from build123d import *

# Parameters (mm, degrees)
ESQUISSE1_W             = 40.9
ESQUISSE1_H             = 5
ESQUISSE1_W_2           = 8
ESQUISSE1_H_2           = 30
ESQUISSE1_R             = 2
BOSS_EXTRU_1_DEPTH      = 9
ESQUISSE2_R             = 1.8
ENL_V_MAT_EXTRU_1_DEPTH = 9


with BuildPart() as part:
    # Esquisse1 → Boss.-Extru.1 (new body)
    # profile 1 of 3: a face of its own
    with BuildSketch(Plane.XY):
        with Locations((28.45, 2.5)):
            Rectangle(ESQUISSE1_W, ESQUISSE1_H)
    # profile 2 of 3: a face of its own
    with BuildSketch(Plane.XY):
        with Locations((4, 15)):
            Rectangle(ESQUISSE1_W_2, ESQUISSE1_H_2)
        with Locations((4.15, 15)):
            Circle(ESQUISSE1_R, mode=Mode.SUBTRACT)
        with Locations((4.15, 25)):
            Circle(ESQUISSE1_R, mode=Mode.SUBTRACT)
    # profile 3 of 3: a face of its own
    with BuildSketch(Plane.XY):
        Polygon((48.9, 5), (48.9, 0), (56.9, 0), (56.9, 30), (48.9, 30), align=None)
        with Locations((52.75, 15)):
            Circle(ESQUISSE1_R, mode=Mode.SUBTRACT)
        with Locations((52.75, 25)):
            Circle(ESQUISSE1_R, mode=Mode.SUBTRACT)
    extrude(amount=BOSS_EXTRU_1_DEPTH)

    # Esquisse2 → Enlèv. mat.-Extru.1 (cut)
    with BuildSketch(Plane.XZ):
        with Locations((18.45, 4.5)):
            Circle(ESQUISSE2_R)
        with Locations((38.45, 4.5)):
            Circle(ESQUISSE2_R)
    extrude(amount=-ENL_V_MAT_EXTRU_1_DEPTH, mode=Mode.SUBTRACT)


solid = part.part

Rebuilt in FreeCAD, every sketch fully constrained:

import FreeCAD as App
import Part
import Sketcher

V = App.Vector

doc = App.newDocument("Part")
body = doc.addObject("PartDesign::Body", "Body")

# Sketch on XY plane
sketch1 = body.newObject("Sketcher::SketchObject", "Sketch")
sketch1.AttachmentSupport = (doc.getObject("XY_Plane"), [""])
sketch1.MapMode = "FlatFace"
sketch1.addGeometry(Part.LineSegment(V(56.9, 0, 0), V(56.9, 30, 0)), False)
sketch1.addGeometry(Part.LineSegment(V(56.9, 30, 0), V(48.9, 30, 0)), False)
sketch1.addGeometry(Part.LineSegment(V(48.9, 30, 0), V(48.9, 5, 0)), False)
sketch1.addGeometry(Part.LineSegment(V(48.9, 5, 0), V(8, 5, 0)), False)
sketch1.addGeometry(Part.LineSegment(V(8, 5, 0), V(8, 30, 0)), False)
sketch1.addGeometry(Part.LineSegment(V(8, 30, 0), V(0, 30, 0)), False)
sketch1.addGeometry(Part.LineSegment(V(0, 30, 0), V(0, 0, 0)), False)
sketch1.addGeometry(Part.LineSegment(V(0, 0, 0), V(56.9, 0, 0)), False)
sketch1.addGeometry(Part.Circle(V(4.2, 25, 0), V(0, 0, 1), 2), False)
sketch1.addGeometry(Part.Circle(V(4.2, 15, 0), V(0, 0, 1), 2), False)
sketch1.addGeometry(Part.Circle(V(52.8, 25, 0), V(0, 0, 1), 2), False)
sketch1.addGeometry(Part.Circle(V(52.8, 15, 0), V(0, 0, 1), 2), False)
sketch1.addConstraint(Sketcher.Constraint("Coincident", 0, 2, 1, 1))
sketch1.addConstraint(Sketcher.Constraint("Coincident", 1, 2, 2, 1))
sketch1.addConstraint(Sketcher.Constraint("Coincident", 2, 2, 3, 1))
sketch1.addConstraint(Sketcher.Constraint("Coincident", 3, 2, 4, 1))
sketch1.addConstraint(Sketcher.Constraint("Coincident", 4, 2, 5, 1))
sketch1.addConstraint(Sketcher.Constraint("Coincident", 5, 2, 6, 1))
sketch1.addConstraint(Sketcher.Constraint("Coincident", 6, 2, 7, 1))
sketch1.addConstraint(Sketcher.Constraint("Coincident", 7, 2, 0, 1))
sketch1.addConstraint(Sketcher.Constraint("Vertical", 0))
sketch1.addConstraint(Sketcher.Constraint("Horizontal", 1))
sketch1.addConstraint(Sketcher.Constraint("Vertical", 2))
sketch1.addConstraint(Sketcher.Constraint("Horizontal", 3))
sketch1.addConstraint(Sketcher.Constraint("Vertical", 4))
sketch1.addConstraint(Sketcher.Constraint("Horizontal", 5))
sketch1.addConstraint(Sketcher.Constraint("Vertical", 6))
sketch1.addConstraint(Sketcher.Constraint("Horizontal", 7))
sketch1.addConstraint(Sketcher.Constraint("Coincident", 6, 2, -1, 1))
sketch1.addConstraint(Sketcher.Constraint("Equal", 8, 9))
sketch1.addConstraint(Sketcher.Constraint("Equal", 9, 10))
sketch1.addConstraint(Sketcher.Constraint("Equal", 10, 11))
sketch1.addConstraint(Sketcher.Constraint("Horizontal", 8, 3, 10, 3))
sketch1.addConstraint(Sketcher.Constraint("Horizontal", 9, 3, 11, 3))
sketch1.addConstraint(Sketcher.Constraint("Horizontal", 1, 2, 4, 2))
sketch1.addConstraint(Sketcher.Constraint("Vertical", 8, 3, 9, 3))
sketch1.addConstraint(Sketcher.Constraint("Vertical", 10, 3, 11, 3))
sketch1.addConstraint(Sketcher.Constraint("Equal", 1, 5))
sketch1.addConstraint(Sketcher.Constraint("Diameter", 8, 4.0))
sketch1.addConstraint(Sketcher.Constraint("DistanceX", 1, 2, 1, 1, 8.0))
sketch1.addConstraint(Sketcher.Constraint("DistanceY", 0, 1, 0, 2, 30.0))
sketch1.addConstraint(Sketcher.Constraint("DistanceY", 2, 2, 2, 1, 25.0))
sketch1.addConstraint(Sketcher.Constraint("DistanceX", 3, 2, 3, 1, 40.9))
sketch1.addConstraint(Sketcher.Constraint("DistanceY", -1, 1, 8, 3, 25.0))
sketch1.addConstraint(Sketcher.Constraint("DistanceY", -1, 1, 9, 3, 15.0))
sketch1.addConstraint(Sketcher.Constraint("DistanceX", 8, 3, 10, 3, 48.6))
sketch1.addConstraint(Sketcher.Constraint("DistanceX", -1, 1, 8, 3, 4.15))
pad1 = body.newObject("PartDesign::Pad", "Pad")
pad1.Profile = sketch1
pad1.Length = 9

# Sketch on XZ plane
sketch2 = body.newObject("Sketcher::SketchObject", "Sketch001")
sketch2.AttachmentSupport = (doc.getObject("XZ_Plane"), [""])
sketch2.MapMode = "FlatFace"
sketch2.addGeometry(Part.Circle(V(18.4, 4.5, 0), V(0, 0, 1), 1.8), False)
sketch2.addGeometry(Part.Circle(V(38.5, 4.5, 0), V(0, 0, 1), 1.8), False)
sketch2.addConstraint(Sketcher.Constraint("Equal", 0, 1))
sketch2.addConstraint(Sketcher.Constraint("Horizontal", 0, 3, 1, 3))
sketch2.addConstraint(Sketcher.Constraint("Diameter", 0, 3.6))
sketch2.addConstraint(Sketcher.Constraint("DistanceX", 0, 3, 1, 3, 20.0))
sketch2.addConstraint(Sketcher.Constraint("DistanceY", -1, 1, 0, 3, 4.5))
sketch2.addConstraint(Sketcher.Constraint("DistanceX", -1, 1, 0, 3, 18.45))
pocket1 = body.newObject("PartDesign::Pocket", "Pocket")
pocket1.Profile = sketch2
pocket1.Length = 9

doc.recompute()
